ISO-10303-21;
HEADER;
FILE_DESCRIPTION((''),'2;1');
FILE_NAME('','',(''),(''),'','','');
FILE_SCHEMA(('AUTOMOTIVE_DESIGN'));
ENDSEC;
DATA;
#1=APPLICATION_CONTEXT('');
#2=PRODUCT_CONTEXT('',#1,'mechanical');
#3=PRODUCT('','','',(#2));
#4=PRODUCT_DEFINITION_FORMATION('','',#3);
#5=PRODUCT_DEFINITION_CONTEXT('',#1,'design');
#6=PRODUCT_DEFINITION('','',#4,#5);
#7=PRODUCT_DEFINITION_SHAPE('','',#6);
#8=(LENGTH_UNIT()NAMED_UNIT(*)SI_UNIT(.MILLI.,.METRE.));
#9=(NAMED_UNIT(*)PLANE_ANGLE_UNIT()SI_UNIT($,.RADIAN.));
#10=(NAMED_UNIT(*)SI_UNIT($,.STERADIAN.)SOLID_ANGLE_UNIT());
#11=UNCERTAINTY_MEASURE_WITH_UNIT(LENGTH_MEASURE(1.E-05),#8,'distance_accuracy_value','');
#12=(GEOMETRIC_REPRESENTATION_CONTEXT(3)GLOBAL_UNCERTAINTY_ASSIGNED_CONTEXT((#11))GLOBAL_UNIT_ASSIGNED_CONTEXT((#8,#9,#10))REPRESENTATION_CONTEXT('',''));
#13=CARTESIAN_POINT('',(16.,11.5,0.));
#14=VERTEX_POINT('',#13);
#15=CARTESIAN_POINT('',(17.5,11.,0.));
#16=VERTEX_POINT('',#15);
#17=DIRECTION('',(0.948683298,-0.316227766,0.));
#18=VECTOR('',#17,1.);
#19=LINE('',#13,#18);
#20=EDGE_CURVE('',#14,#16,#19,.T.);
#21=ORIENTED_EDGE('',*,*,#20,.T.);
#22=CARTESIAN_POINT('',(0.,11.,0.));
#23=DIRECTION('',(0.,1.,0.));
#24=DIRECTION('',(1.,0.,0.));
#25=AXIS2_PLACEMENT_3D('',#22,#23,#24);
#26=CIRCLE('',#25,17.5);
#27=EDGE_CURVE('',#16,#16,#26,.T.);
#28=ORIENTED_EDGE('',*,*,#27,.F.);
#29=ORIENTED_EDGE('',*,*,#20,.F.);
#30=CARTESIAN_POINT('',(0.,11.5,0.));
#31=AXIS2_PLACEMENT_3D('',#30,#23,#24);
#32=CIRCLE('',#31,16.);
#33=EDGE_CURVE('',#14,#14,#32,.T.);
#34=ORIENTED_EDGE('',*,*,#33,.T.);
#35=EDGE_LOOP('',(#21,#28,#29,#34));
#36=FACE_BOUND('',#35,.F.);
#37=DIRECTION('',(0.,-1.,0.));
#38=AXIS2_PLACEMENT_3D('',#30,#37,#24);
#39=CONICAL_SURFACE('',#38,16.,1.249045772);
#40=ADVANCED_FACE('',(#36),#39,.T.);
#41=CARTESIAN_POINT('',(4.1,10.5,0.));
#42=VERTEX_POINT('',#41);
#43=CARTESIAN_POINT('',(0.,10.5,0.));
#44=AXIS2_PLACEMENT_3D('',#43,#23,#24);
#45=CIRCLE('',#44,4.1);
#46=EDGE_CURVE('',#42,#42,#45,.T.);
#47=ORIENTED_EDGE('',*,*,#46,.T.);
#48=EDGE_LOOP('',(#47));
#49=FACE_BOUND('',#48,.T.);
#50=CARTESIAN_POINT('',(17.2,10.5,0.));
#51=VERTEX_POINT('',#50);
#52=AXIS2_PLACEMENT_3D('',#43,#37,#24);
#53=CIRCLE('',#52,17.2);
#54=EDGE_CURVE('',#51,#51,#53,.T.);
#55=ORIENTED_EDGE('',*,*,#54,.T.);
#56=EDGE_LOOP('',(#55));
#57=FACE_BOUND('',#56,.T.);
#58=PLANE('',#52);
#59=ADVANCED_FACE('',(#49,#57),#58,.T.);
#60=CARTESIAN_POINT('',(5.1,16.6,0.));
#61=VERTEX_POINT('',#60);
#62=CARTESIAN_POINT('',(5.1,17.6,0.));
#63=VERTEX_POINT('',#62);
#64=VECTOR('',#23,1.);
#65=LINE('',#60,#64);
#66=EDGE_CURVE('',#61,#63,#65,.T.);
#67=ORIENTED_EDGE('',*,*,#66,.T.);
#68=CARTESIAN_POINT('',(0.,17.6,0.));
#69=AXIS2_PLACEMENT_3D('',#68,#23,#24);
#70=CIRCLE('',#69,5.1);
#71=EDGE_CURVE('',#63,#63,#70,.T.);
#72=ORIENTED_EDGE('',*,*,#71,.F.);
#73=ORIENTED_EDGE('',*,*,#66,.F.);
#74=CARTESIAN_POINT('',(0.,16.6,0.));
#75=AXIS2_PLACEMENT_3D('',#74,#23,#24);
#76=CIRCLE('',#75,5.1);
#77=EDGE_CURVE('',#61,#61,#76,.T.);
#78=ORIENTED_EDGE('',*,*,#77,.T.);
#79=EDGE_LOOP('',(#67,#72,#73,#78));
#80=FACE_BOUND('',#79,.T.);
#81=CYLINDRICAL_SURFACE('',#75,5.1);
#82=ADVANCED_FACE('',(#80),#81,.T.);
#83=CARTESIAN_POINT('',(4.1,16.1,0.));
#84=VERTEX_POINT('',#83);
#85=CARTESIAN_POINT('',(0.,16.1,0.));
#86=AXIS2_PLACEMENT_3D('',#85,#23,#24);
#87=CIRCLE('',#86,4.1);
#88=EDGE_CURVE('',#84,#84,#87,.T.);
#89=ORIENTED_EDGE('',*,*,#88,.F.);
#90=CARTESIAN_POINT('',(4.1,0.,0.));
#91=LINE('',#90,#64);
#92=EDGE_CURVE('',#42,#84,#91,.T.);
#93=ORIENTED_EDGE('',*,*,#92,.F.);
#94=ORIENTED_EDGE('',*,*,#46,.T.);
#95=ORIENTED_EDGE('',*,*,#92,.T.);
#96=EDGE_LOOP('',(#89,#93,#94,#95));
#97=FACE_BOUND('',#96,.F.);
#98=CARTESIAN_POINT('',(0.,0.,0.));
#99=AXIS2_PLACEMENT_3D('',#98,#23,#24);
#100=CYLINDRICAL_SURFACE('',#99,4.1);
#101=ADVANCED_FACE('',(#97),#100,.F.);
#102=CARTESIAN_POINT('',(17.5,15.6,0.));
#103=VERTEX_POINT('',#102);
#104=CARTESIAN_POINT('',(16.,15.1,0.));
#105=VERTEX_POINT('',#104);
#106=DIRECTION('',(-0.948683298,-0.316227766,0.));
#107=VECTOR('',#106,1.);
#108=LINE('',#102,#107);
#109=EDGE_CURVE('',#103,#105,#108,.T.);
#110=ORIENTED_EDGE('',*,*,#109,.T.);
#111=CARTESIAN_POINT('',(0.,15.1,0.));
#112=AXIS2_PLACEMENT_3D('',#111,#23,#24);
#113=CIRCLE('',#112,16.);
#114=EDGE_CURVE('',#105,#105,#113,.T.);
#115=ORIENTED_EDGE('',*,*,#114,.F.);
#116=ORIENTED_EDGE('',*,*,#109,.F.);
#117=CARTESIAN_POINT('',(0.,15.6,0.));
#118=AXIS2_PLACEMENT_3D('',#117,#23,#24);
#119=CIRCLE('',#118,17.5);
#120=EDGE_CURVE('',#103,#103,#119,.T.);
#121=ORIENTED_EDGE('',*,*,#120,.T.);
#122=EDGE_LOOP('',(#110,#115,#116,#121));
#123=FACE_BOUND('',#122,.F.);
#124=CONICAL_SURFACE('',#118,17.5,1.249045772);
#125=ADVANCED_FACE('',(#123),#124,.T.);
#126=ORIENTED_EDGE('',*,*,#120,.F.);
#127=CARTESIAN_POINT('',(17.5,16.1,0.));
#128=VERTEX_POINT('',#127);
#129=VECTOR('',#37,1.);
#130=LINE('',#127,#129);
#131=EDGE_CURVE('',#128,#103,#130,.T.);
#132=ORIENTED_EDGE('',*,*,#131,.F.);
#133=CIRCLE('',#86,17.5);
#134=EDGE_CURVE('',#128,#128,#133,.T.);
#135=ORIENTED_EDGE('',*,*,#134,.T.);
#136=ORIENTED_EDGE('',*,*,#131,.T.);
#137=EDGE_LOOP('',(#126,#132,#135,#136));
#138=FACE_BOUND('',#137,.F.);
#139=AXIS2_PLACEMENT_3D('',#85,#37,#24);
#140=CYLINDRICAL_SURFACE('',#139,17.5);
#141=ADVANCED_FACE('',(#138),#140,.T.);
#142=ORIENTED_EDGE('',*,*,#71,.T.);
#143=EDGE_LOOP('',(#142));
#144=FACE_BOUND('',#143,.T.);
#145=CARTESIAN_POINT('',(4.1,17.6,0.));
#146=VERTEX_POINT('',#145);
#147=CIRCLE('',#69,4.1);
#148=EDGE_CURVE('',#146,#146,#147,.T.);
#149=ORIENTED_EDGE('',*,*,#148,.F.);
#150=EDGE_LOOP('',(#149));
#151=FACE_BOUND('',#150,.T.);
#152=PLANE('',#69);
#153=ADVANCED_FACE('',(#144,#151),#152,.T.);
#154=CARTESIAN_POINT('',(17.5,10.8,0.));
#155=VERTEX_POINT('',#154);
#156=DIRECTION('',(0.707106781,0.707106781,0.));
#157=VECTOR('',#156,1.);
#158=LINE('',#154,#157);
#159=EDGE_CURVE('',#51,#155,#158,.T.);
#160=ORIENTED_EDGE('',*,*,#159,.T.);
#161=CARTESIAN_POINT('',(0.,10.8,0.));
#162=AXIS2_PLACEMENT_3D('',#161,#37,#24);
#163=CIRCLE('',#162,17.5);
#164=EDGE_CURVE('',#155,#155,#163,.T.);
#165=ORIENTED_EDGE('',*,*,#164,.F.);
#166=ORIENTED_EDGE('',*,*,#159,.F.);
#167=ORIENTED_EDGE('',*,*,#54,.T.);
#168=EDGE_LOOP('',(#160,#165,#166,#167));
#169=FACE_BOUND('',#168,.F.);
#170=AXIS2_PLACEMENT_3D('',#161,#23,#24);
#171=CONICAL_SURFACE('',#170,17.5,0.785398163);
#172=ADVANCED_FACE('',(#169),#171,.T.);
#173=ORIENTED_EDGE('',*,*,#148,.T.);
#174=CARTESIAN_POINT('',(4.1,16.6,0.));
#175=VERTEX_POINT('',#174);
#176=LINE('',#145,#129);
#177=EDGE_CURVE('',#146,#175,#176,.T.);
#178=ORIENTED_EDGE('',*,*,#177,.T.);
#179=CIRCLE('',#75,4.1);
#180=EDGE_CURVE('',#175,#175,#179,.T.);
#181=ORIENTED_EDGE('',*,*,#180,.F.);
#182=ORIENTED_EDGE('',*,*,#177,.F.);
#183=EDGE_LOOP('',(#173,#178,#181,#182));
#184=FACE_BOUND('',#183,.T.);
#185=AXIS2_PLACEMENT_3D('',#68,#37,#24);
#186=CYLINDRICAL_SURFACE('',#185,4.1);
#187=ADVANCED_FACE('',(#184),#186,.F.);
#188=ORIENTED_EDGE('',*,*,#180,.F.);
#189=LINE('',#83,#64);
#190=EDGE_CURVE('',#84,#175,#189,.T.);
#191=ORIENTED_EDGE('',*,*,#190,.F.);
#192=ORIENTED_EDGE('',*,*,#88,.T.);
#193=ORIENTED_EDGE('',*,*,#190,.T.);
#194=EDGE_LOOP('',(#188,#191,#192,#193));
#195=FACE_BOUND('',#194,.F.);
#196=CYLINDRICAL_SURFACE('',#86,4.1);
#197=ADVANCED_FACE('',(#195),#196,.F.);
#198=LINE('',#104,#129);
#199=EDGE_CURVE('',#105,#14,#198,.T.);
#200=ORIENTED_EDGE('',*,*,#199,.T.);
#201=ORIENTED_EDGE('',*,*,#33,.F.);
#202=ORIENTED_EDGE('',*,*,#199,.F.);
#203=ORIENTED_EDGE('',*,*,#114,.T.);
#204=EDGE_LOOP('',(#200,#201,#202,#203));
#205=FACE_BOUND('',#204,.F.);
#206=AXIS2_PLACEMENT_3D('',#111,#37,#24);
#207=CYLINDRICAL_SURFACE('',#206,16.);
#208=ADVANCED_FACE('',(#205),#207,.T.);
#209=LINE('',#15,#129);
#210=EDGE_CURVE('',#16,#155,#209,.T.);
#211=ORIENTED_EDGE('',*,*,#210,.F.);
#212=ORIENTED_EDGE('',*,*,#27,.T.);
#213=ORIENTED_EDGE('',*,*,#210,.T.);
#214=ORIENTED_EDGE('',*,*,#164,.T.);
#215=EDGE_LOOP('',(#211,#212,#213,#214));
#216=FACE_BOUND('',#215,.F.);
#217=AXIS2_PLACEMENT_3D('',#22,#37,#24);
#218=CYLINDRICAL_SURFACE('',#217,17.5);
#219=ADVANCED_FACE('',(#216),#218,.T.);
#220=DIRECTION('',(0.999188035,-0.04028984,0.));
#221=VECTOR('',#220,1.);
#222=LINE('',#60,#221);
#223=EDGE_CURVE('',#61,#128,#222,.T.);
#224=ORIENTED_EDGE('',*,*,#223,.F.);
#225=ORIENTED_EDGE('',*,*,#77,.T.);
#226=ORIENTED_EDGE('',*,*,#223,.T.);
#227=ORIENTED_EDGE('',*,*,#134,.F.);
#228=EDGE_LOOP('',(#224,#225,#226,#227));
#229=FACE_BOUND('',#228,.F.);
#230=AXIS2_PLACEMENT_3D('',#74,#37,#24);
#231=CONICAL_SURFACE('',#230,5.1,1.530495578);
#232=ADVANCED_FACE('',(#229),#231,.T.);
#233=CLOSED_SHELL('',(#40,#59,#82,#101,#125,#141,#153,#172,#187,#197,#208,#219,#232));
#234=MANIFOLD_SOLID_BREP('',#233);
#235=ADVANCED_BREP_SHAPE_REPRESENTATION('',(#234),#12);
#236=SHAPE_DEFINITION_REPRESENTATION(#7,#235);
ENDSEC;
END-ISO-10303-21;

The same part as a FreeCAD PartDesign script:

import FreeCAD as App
import Part
import Sketcher


def edges_at(feature, points):
    """Names of the edges that pass closest to the given points."""
    edges = feature.Shape.Edges
    near = lambda p: min(range(len(edges)), key=lambda i: edges[i].distToShape(Part.Vertex(*p))[0])
    return sorted({f"Edge{near(p) + 1}" for p in points})

doc = App.newDocument("Part")
body = doc.addObject("PartDesign::Body", "Body")

# Sketch on XY plane
sketch1 = body.newObject("Sketcher::SketchObject", "Sketch")
sketch1.AttachmentSupport = (doc.getObject("XY_Plane"), [""])
sketch1.MapMode = "FlatFace"
sketch1.addGeometry([
    Part.LineSegment(App.Vector(4.1, 17.6, 0), App.Vector(4.1, 0, 0)),  # 0
    Part.LineSegment(App.Vector(4.1, 0, 0), App.Vector(9, 0, 0)),  # 1
    Part.LineSegment(App.Vector(9, 0, 0), App.Vector(9, 6, 0)),  # 2
    Part.LineSegment(App.Vector(9, 6, 0), App.Vector(17.5, 10, 0)),  # 3
    Part.LineSegment(App.Vector(17.5, 10, 0), App.Vector(17.5, 11, 0)),  # 4
    Part.LineSegment(App.Vector(17.5, 11, 0), App.Vector(16, 11.5, 0)),  # 5
    Part.LineSegment(App.Vector(16, 11.5, 0), App.Vector(16, 15.1, 0)),  # 6
    Part.LineSegment(App.Vector(16, 15.1, 0), App.Vector(17.5, 15.6, 0)),  # 7
    Part.LineSegment(App.Vector(17.5, 15.6, 0), App.Vector(17.5, 16.1, 0)),  # 8
    Part.LineSegment(App.Vector(17.5, 16.1, 0), App.Vector(5.1, 16.6, 0)),  # 9
    Part.LineSegment(App.Vector(5.1, 16.6, 0), App.Vector(5.1, 17.6, 0)),  # 10
    Part.LineSegment(App.Vector(5.1, 17.6, 0), App.Vector(4.1, 17.6, 0)),  # 11
], False)
sketch1.addConstraint([
    Sketcher.Constraint("Coincident", 0, 2, 1, 1),
    Sketcher.Constraint("Coincident", 1, 2, 2, 1),
    Sketcher.Constraint("Coincident", 2, 2, 3, 1),
    Sketcher.Constraint("Coincident", 3, 2, 4, 1),
    Sketcher.Constraint("Coincident", 4, 2, 5, 1),
    Sketcher.Constraint("Coincident", 5, 2, 6, 1),
    Sketcher.Constraint("Coincident", 6, 2, 7, 1),
    Sketcher.Constraint("Coincident", 7, 2, 8, 1),
    Sketcher.Constraint("Coincident", 8, 2, 9, 1),
    Sketcher.Constraint("Coincident", 9, 2, 10, 1),
    Sketcher.Constraint("Coincident", 10, 2, 11, 1),
    Sketcher.Constraint("Coincident", 11, 2, 0, 1),
    Sketcher.Constraint("Vertical", 0),
    Sketcher.Constraint("Horizontal", 1),
    Sketcher.Constraint("Vertical", 2),
    Sketcher.Constraint("Vertical", 4),
    Sketcher.Constraint("Vertical", 6),
    Sketcher.Constraint("Vertical", 8),
    Sketcher.Constraint("Vertical", 10),
    Sketcher.Constraint("Horizontal", 11),
    Sketcher.Constraint("PointOnObject", 0, 2, -1),
    Sketcher.Constraint("Vertical", 4, 2, 7, 2),
    Sketcher.Constraint("Equal", 11, 4),
    Sketcher.Constraint("Equal", 4, 10),
    Sketcher.Constraint("Equal", 5, 7),
    Sketcher.Constraint("DistanceX", 11, 2, 11, 1, 1.0),
    Sketcher.Constraint("DistanceY", 2, 1, 2, 2, 6.0),
    Sketcher.Constraint("DistanceY", 6, 1, 6, 2, 3.6),
    Sketcher.Constraint("DistanceY", 8, 1, 8, 2, 0.5),
    Sketcher.Constraint("DistanceX", -1, 1, 1, 2, 9.0),
    Sketcher.Constraint("DistanceX", -1, 1, 5, 2, 16.0),
    Sketcher.Constraint("DistanceY", 2, 2, 3, 2, 4.0),
    Sketcher.Constraint("DistanceY", 6, 2, 8, 2, 1.0),
    Sketcher.Constraint("DistanceY", 7, 2, 9, 2, 1.0),
    Sketcher.Constraint("DistanceX", -1, 1, 0, 2, 4.1),
    Sketcher.Constraint("DistanceX", 5, 2, 4, 2, 1.5),
])
revolution = body.newObject("PartDesign::Revolution", "Revolution")
revolution.Profile = sketch1
revolution.ReferenceAxis = (sketch1, ["V_Axis"])
revolution.Angle = 360

# Sketch on YZ plane
sketch2 = body.newObject("Sketcher::SketchObject", "Sketch001")
sketch2.AttachmentSupport = (doc.getObject("YZ_Plane"), [""])
sketch2.MapMode = "FlatFace"
sketch2.AttachmentOffset = App.Placement(App.Vector(0, 0, 4), App.Rotation())
sketch2.addGeometry([
    Part.LineSegment(App.Vector(5.7, 2.85, 0), App.Vector(0, 2.85, 0)),
    Part.LineSegment(App.Vector(0, 2.85, 0), App.Vector(0, -2.85, 0)),
    Part.LineSegment(App.Vector(0, -2.85, 0), App.Vector(5.7, -2.85, 0)),
    Part.LineSegment(App.Vector(5.7, -2.85, 0), App.Vector(5.7, 2.85, 0)),
], False)
sketch2.addConstraint([
    Sketcher.Constraint("Coincident", 0, 2, 1, 1),
    Sketcher.Constraint("Coincident", 1, 2, 2, 1),
    Sketcher.Constraint("Coincident", 2, 2, 3, 1),
    Sketcher.Constraint("Coincident", 3, 2, 0, 1),
    Sketcher.Constraint("Horizontal", 0),
    Sketcher.Constraint("Vertical", 1),
    Sketcher.Constraint("Horizontal", 2),
    Sketcher.Constraint("Vertical", 3),
    Sketcher.Constraint("Symmetric", 0, 2, 1, 2, -1, 1),
    Sketcher.Constraint("Equal", 2, 1),
    Sketcher.Constraint("DistanceX", 0, 2, 0, 1, 5.7),
])
pocket1 = body.newObject("PartDesign::Pocket", "Pocket")
pocket1.Profile = sketch2
pocket1.Type = "TwoLengths"
pocket1.Length = 2.5
pocket1.Length2 = 3
pocket1.Reversed = True

# Sketch on YZ plane
sketch3 = body.newObject("Sketcher::SketchObject", "Sketch002")
sketch3.AttachmentSupport = (doc.getObject("YZ_Plane"), [""])
sketch3.MapMode = "FlatFace"
sketch3.AttachmentOffset = App.Placement(App.Vector(0, 0, 4), App.Rotation())
sketch3.addGeometry(Part.Circle(App.Vector(2.85, 0, 0), App.Vector(0, 0, 1), 1.7), False)
sketch3.addConstraint([
    Sketcher.Constraint("PointOnObject", 0, 3, -1),
    Sketcher.Constraint("Diameter", 0, 3.4),
    Sketcher.Constraint("DistanceX", -1, 1, 0, 3, 2.85),
])
pocket2 = body.newObject("PartDesign::Pocket", "Pocket001")
pocket2.Profile = sketch3
pocket2.Type = "ThroughAll"
pocket2.Reversed = True

# Sketch on XZ plane
sketch4 = body.newObject("Sketcher::SketchObject", "Sketch003")
sketch4.AttachmentSupport = (doc.getObject("XZ_Plane"), [""])
sketch4.MapMode = "FlatFace"
sketch4.addGeometry(Part.Circle(App.Vector(0, 0, 0), App.Vector(0, 0, 1), 26.9979), False)
sketch4.addConstraint([
    Sketcher.Constraint("Coincident", 0, 3, -1, 1),
    Sketcher.Constraint("Diameter", 0, 53.9958),
])
pocket3 = body.newObject("PartDesign::Pocket", "Pocket002")
pocket3.Profile = sketch4
pocket3.Length = 10.5
doc.recompute()

chamfer = body.newObject("PartDesign::Chamfer", "Chamfer")
chamfer.Base = (pocket3, edges_at(pocket3, [(-17.5, 10.5, 0)]))
chamfer.Size = 0.3

doc.recompute()
